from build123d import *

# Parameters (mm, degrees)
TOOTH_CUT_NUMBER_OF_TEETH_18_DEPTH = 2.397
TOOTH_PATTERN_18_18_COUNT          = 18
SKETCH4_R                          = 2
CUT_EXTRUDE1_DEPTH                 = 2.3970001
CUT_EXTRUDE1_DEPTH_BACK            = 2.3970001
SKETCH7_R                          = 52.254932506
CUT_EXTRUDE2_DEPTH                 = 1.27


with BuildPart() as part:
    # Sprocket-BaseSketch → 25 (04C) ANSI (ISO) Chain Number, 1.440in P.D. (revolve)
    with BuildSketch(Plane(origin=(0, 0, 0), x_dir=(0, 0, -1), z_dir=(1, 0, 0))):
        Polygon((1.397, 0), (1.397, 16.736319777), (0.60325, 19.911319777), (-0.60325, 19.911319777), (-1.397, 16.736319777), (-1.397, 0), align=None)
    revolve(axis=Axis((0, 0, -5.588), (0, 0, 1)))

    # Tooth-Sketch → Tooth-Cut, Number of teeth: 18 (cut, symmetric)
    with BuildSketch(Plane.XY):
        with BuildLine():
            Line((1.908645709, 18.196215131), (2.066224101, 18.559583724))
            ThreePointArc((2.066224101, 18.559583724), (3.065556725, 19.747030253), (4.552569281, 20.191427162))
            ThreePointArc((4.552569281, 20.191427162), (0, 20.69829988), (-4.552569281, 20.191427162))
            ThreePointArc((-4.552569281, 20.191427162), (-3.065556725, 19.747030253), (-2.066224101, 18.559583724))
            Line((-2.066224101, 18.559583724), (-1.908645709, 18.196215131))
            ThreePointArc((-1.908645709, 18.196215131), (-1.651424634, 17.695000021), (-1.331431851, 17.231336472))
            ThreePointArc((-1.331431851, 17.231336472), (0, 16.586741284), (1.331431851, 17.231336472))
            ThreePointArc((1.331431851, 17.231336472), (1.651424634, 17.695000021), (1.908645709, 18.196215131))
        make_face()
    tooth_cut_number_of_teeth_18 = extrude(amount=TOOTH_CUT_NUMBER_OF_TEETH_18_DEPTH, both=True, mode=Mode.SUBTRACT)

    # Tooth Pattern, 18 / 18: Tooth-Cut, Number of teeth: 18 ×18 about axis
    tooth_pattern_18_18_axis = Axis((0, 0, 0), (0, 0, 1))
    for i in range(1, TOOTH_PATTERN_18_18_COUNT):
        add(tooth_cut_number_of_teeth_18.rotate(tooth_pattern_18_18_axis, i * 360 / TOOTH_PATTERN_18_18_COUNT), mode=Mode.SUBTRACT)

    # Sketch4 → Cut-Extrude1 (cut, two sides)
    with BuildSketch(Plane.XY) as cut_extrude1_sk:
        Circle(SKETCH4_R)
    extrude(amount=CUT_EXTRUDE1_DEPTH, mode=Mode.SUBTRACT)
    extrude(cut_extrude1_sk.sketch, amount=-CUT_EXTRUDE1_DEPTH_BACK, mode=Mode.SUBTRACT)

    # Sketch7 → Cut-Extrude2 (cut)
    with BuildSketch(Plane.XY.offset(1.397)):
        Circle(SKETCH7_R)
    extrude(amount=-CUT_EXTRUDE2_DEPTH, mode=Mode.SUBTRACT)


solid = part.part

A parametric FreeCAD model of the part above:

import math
import FreeCAD as App
import Part
import Sketcher
Q = App.Units.Quantity


def add_polygon(sketch, points):
    """Adds a closed chain of lines whose ends are joined by coincident constraints."""
    first, n = sketch.GeometryCount, len(points)
    for a, b in zip(points, points[1:] + points[:1]):
        sketch.addGeometry(Part.LineSegment(App.Vector(*a, 0), App.Vector(*b, 0)), False)
    for i in range(n):
        sketch.addConstraint(Sketcher.Constraint("Coincident", first + i, 2, first + (i + 1) % n, 1))

doc = App.newDocument("Part")
params = doc.addObject("Spreadsheet::Sheet", "Params")
for row, (alias, value) in enumerate([
    ("sketch1_height", "0.11 in"),
    ("revolution_angle", "360 deg"),
    ("pocket1_length", "4.794 mm"),
    ("pocket3_length", "0.05 in"),
], start=1):
    params.set(f"A{row}", alias)
    params.set(f"B{row}", "=" + value)
    params.setAlias(f"B{row}", alias)

body = doc.addObject("PartDesign::Body", "Body")

# Sketch on YZ plane
sketch1 = body.newObject("Sketcher::SketchObject", "Sketch")
sketch1.AttachmentSupport = (doc.getObject("YZ_Plane"), [""])
sketch1.MapMode = "FlatFace"
add_polygon(sketch1, [(0, -1.4), (16.7, -1.4), (19.9, -0.6), (19.9, 0.6), (16.7, 1.4), (0, 1.4)])  # lines 0-5
sketch1.addConstraint([
    Sketcher.Constraint("Horizontal", 0),
    Sketcher.Constraint("Vertical", 2),
    Sketcher.Constraint("Horizontal", 4),
    Sketcher.Constraint("Vertical", 5),
    Sketcher.Constraint("Symmetric", 4, 2, 5, 2, -1, 1),
    Sketcher.Constraint("Vertical", 0, 2, 3, 2),
    Sketcher.Constraint("Equal", 1, 3),
    Sketcher.Constraint("DistanceY", 5, 2, 5, 1, Q("0.11 in")),
    Sketcher.Constraint("DistanceY", 2, 1, 2, 2, Q("0.0475 in")),
    Sketcher.Constraint("DistanceX", 0, 2, 1, 2, Q("0.125 in")),
    Sketcher.Constraint("DistanceX", 0, 1, 0, 2, 16.73632),
])
sketch1.setExpression("Constraints[13]", "Params.sketch1_height")
revolution = body.newObject("PartDesign::Revolution", "Revolution")
revolution.Profile = sketch1
revolution.ReferenceAxis = (sketch1, ["V_Axis"])
revolution.setExpression("Angle", "Params.revolution_angle")

# Sketch on XY plane
sketch2 = body.newObject("Sketcher::SketchObject", "Sketch001")
sketch2.AttachmentSupport = (doc.getObject("XY_Plane"), [""])
sketch2.MapMode = "FlatFace"
sketch2.addGeometry([
    Part.LineSegment(App.Vector(1.91, 18.2, 0), App.Vector(2.07, 18.56, 0)),  # 0
    Part.ArcOfCircle(Part.Circle(App.Vector(4.55, 17.48, 0), App.Vector(0, 0, 1), 2.71), math.radians(90), math.radians(157)),  # 1
    Part.ArcOfCircle(Part.Circle(App.Vector(0, 0, 0), App.Vector(0, 0, 1), 20.7), math.radians(77), math.radians(103)),  # 2
    Part.ArcOfCircle(Part.Circle(App.Vector(-4.55, 17.48, 0), App.Vector(0, 0, 1), 2.71), math.radians(23), math.radians(90)),  # 3
    Part.LineSegment(App.Vector(-2.07, 18.56, 0), App.Vector(-1.91, 18.2, 0)),  # 4
    Part.ArcOfCircle(Part.Circle(App.Vector(2.07, 19.92, 0), App.Vector(0, 0, 1), 4.34), math.radians(-156.56), math.radians(-141.67)),  # 5
    Part.ArcOfCircle(Part.Circle(App.Vector(0, 18.28, 0), App.Vector(0, 0, 1), 1.7), math.radians(-142), math.radians(-38)),  # 6
    Part.ArcOfCircle(Part.Circle(App.Vector(-2.07, 19.92, 0), App.Vector(0, 0, 1), 4.34), math.radians(-38.33), math.radians(-23.44)),  # 7
], False)
sketch2.addConstraint([
    Sketcher.Constraint("Tangent", 0, 2, 1, 2),
    Sketcher.Constraint("Coincident", 1, 1, 2, 1),
    Sketcher.Constraint("Coincident", 2, 2, 3, 2),
    Sketcher.Constraint("Tangent", 3, 1, 4, 1),
    Sketcher.Constraint("Tangent", 4, 2, 5, 1),
    Sketcher.Constraint("Tangent", 5, 2, 6, 1),
    Sketcher.Constraint("Tangent", 6, 2, 7, 1),
    Sketcher.Constraint("Tangent", 7, 2, 0, 1),
    Sketcher.Constraint("Coincident", 2, 3, -1, 1),
    Sketcher.Constraint("Equal", 1, 3),
    Sketcher.Constraint("Equal", 5, 7),
    Sketcher.Constraint("Symmetric", 1, 3, 3, 3, -2),
    Sketcher.Constraint("Symmetric", 5, 3, 7, 3, -2),
    Sketcher.Constraint("Vertical", 3, 3, 2, 2),
    Sketcher.Constraint("Radius", 2, 20.6983),
    Sketcher.Constraint("Radius", 1, 2.710072),
    Sketcher.Constraint("Radius", 5, 4.338955),
    Sketcher.Constraint("Radius", 6, 1.697355),
    Sketcher.Constraint("DistanceX", -1, 1, 1, 3, 4.552569),
    Sketcher.Constraint("DistanceY", -1, 1, 5, 3, 19.92251),
    Sketcher.Constraint("DistanceX", 5, 2, -1, 1, 1.331432),
])
pocket1 = body.newObject("PartDesign::Pocket", "Pocket")
pocket1.Profile = sketch2
pocket1.setExpression("Length", "Params.pocket1_length")
pocket1.Midplane = True
doc.recompute()

polarpattern = body.newObject("PartDesign::PolarPattern", "PolarPattern")
polarpattern.Originals = [pocket1]
polarpattern.Axis = (doc.getObject("Z_Axis"), [""])
polarpattern.Angle = 360
polarpattern.Occurrences = 18
body.Tip = polarpattern

# Sketch on XY plane
sketch3 = body.newObject("Sketcher::SketchObject", "Sketch002")
sketch3.AttachmentSupport = (doc.getObject("XY_Plane"), [""])
sketch3.MapMode = "FlatFace"
sketch3.addGeometry(Part.Circle(App.Vector(0, 0, 0), App.Vector(0, 0, 1), 2), False)
sketch3.addConstraint([
    Sketcher.Constraint("Coincident", 0, 3, -1, 1),
    Sketcher.Constraint("Diameter", 0, 4.0),
])
pocket2 = body.newObject("PartDesign::Pocket", "Pocket001")
pocket2.Profile = sketch3
pocket2.Type = "ThroughAll"
pocket2.Midplane = True

# Sketch on XY plane
sketch4 = body.newObject("Sketcher::SketchObject", "Sketch003")
sketch4.AttachmentSupport = (doc.getObject("XY_Plane"), [""])
sketch4.MapMode = "FlatFace"
sketch4.AttachmentOffset = App.Placement(App.Vector(0, 0, 0.055 * 25.4), App.Rotation())
sketch4.addGeometry(Part.Circle(App.Vector(0, 0, 0), App.Vector(0, 0, 1), 52), False)
sketch4.addConstraint([
    Sketcher.Constraint("Coincident", 0, 3, -1, 1),
    Sketcher.Constraint("Diameter", 0, 104.509865),
])
pocket3 = body.newObject("PartDesign::Pocket", "Pocket002")
pocket3.Profile = sketch4
pocket3.setExpression("Length", "Params.pocket3_length")

doc.recompute()
